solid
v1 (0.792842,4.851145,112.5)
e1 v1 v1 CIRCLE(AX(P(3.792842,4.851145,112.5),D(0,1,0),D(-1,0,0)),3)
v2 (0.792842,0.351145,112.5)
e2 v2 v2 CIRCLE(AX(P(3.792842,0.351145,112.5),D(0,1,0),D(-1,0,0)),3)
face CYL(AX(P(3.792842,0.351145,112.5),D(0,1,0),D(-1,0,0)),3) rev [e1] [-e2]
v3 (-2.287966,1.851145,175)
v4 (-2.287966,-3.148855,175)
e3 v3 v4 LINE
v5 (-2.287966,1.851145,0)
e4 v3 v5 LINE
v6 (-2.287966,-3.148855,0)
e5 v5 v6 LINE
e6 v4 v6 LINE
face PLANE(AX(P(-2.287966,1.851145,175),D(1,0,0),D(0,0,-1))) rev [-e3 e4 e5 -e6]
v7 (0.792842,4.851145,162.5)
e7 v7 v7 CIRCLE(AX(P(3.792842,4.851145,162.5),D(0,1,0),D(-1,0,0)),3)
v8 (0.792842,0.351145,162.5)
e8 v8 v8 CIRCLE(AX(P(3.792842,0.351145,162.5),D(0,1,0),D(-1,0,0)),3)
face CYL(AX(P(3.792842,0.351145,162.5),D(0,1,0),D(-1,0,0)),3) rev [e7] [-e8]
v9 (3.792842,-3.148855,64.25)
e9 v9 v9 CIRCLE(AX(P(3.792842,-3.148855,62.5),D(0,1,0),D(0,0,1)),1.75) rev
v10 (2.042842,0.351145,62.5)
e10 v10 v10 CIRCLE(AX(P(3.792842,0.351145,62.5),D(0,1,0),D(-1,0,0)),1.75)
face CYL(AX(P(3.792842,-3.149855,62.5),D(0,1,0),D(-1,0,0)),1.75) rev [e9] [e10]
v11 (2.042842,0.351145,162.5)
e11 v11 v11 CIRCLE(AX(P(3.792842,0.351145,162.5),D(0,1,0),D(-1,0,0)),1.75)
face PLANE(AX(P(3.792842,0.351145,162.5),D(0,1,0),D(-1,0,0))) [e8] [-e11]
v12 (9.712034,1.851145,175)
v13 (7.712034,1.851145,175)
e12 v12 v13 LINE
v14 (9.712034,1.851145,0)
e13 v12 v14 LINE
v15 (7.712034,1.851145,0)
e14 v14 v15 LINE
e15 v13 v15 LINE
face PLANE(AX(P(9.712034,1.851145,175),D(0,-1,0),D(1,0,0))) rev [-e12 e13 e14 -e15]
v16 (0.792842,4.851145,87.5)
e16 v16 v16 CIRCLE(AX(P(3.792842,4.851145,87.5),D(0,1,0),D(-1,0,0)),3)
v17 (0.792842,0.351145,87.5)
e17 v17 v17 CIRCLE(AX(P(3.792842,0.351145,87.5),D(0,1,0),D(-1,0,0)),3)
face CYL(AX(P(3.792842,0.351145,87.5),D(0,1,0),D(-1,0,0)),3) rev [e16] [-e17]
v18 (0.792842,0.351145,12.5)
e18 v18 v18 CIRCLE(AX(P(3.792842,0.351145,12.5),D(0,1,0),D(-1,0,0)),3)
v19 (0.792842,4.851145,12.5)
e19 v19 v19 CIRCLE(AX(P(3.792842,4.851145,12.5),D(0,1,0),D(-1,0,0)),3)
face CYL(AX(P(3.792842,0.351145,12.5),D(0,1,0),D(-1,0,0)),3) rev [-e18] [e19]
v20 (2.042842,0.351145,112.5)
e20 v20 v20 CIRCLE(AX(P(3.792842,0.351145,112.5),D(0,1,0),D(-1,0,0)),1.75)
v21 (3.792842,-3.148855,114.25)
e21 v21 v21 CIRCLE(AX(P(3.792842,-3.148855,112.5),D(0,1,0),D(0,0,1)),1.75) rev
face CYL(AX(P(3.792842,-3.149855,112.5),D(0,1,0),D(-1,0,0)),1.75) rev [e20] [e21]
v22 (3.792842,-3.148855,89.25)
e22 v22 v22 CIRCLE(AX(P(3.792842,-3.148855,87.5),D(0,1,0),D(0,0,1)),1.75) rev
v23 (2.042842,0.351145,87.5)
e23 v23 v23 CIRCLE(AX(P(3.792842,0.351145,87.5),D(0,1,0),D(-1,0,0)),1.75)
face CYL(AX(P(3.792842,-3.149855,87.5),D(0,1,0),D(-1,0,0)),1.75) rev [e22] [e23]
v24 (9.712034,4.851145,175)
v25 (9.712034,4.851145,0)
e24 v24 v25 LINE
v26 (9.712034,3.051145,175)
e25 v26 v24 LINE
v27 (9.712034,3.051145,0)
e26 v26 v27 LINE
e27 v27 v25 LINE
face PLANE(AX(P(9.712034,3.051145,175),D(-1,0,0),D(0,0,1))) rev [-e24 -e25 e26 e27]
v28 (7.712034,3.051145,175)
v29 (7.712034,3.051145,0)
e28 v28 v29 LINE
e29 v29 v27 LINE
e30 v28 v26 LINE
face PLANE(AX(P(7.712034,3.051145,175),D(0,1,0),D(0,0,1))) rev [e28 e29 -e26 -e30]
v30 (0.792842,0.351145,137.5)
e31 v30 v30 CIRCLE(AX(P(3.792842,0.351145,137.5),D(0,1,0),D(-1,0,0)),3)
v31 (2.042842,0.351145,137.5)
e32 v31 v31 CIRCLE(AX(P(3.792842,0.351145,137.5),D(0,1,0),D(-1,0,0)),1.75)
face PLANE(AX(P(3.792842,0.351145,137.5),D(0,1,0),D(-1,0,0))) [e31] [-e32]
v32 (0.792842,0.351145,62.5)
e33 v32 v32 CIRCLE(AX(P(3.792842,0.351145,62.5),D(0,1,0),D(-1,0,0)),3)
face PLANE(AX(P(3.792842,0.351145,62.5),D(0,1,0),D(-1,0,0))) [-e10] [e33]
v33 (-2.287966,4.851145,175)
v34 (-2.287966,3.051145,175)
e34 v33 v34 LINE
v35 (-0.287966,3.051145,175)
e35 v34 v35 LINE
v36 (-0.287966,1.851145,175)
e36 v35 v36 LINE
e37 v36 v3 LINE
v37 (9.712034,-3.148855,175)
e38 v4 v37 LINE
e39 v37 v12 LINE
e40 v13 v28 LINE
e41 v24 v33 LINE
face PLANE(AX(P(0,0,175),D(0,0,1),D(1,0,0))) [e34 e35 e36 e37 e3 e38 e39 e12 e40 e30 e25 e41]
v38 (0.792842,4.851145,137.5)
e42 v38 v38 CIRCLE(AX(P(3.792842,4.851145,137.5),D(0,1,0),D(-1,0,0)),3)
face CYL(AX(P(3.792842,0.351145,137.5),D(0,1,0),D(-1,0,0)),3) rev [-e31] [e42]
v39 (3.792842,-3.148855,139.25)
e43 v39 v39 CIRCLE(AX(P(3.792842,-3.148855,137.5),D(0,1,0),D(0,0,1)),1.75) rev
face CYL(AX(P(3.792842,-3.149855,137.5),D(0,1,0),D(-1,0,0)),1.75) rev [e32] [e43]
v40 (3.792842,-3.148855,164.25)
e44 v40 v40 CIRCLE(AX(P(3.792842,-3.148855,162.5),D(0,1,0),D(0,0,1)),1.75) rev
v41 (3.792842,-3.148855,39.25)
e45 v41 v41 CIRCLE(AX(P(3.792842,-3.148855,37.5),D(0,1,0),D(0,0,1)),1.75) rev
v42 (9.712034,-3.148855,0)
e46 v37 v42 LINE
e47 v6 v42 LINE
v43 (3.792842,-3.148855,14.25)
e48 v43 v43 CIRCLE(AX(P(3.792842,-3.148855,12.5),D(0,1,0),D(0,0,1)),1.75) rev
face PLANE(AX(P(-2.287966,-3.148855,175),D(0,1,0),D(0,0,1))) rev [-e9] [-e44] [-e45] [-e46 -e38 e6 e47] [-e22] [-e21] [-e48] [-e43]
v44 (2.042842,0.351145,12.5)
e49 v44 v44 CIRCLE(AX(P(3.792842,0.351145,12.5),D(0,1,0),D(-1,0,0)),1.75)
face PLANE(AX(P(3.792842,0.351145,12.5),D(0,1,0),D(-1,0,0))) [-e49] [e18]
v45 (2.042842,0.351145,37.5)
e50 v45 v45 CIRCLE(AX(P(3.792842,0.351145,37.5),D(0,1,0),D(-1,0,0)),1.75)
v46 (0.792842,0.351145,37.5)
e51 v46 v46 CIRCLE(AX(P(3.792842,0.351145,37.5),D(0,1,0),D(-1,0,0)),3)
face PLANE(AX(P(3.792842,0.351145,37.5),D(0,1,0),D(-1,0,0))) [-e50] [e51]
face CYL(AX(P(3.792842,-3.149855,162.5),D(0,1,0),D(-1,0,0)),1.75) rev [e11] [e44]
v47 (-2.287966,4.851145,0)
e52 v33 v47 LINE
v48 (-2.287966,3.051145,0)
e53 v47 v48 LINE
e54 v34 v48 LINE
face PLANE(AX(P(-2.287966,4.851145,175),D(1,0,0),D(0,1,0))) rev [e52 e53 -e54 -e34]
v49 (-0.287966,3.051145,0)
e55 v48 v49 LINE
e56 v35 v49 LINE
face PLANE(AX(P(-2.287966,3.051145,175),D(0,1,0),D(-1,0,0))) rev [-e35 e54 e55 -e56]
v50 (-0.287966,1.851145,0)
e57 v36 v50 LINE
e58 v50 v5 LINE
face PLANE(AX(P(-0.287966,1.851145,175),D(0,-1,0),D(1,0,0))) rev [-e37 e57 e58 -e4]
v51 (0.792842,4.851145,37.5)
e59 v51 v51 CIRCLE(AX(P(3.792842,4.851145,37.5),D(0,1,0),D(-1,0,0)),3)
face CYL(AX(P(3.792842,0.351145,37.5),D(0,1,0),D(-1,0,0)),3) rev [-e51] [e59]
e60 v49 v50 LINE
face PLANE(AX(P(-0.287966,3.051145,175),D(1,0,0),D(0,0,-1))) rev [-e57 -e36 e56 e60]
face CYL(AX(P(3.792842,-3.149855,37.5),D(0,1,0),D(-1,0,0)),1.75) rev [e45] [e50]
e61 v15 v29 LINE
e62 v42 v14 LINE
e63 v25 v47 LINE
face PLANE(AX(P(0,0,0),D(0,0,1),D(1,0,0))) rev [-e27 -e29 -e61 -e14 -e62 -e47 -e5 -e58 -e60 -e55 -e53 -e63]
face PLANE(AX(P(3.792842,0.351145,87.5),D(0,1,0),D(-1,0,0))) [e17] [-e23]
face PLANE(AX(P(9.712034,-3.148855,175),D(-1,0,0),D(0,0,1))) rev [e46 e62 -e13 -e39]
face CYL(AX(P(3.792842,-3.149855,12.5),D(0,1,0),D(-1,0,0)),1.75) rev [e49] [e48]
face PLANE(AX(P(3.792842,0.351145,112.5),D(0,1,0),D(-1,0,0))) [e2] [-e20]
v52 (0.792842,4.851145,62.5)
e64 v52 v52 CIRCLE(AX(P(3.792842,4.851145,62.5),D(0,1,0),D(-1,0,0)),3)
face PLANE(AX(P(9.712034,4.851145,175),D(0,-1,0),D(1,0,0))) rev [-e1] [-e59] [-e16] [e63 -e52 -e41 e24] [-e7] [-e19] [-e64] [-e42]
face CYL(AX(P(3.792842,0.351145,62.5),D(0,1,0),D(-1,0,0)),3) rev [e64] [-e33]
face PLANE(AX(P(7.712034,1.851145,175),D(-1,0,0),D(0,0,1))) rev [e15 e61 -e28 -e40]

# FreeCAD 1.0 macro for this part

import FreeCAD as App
import Part
import Sketcher

V = App.Vector

doc = App.newDocument("Part")
params = doc.addObject("Spreadsheet::Sheet", "Params")
for row, (alias, value) in enumerate([
    ("sketch1_width", "12 mm"),
    ("sketch1_width2", "2 mm"),
    ("sketch1_height", "5 mm"),
    ("sketch1_height2", "1.2 mm"),
    ("sketch1_height3", "1.8 mm"),
    ("pad1_length", "175 mm"),
    ("sketch2_diameter", "6 mm"),
    ("pocket1_length", "4.5 mm"),
    ("sketch3_diameter", "3.5 mm"),
    ("sketch4_diameter", "3.5 mm"),
    ("sketch5_diameter", "3.5 mm"),
    ("sketch6_diameter", "3.5 mm"),
    ("sketch7_diameter", "3.5 mm"),
    ("sketch8_diameter", "3.5 mm"),
    ("sketch9_diameter", "3.5 mm"),
], start=1):
    params.set(f"A{row}", alias)
    params.set(f"B{row}", "=" + value)
    params.setAlias(f"B{row}", alias)

body = doc.addObject("PartDesign::Body", "Body")

# Sketch on XY plane
sketch1 = body.newObject("Sketcher::SketchObject", "Sketch")
sketch1.AttachmentSupport = (doc.getObject("XY_Plane"), [""])
sketch1.MapMode = "FlatFace"
sketch1.addGeometry([
    Part.LineSegment(V(-2.3, -3.1, 0), V(9.7, -3.1, 0)),  # 0
    Part.LineSegment(V(9.7, -3.1, 0), V(9.7, 1.9, 0)),  # 1
    Part.LineSegment(V(9.7, 1.9, 0), V(7.7, 1.9, 0)),  # 2
    Part.LineSegment(V(7.7, 1.9, 0), V(7.7, 3.1, 0)),  # 3
    Part.LineSegment(V(7.7, 3.1, 0), V(9.7, 3.1, 0)),  # 4
    Part.LineSegment(V(9.7, 3.1, 0), V(9.7, 4.9, 0)),  # 5
    Part.LineSegment(V(9.7, 4.9, 0), V(-2.3, 4.9, 0)),  # 6
    Part.LineSegment(V(-2.3, 4.9, 0), V(-2.3, 3.1, 0)),  # 7
    Part.LineSegment(V(-2.3, 3.1, 0), V(-0.3, 3.1, 0)),  # 8
    Part.LineSegment(V(-0.3, 3.1, 0), V(-0.3, 1.9, 0)),  # 9
    Part.LineSegment(V(-0.3, 1.9, 0), V(-2.3, 1.9, 0)),  # 10
    Part.LineSegment(V(-2.3, 1.9, 0), V(-2.3, -3.1, 0)),  # 11
], False)
sketch1.addConstraint([
    Sketcher.Constraint("Coincident", 0, 2, 1, 1),
    Sketcher.Constraint("Coincident", 1, 2, 2, 1),
    Sketcher.Constraint("Coincident", 2, 2, 3, 1),
    Sketcher.Constraint("Coincident", 3, 2, 4, 1),
    Sketcher.Constraint("Coincident", 4, 2, 5, 1),
    Sketcher.Constraint("Coincident", 5, 2, 6, 1),
    Sketcher.Constraint("Coincident", 6, 2, 7, 1),
    Sketcher.Constraint("Coincident", 7, 2, 8, 1),
    Sketcher.Constraint("Coincident", 8, 2, 9, 1),
    Sketcher.Constraint("Coincident", 9, 2, 10, 1),
    Sketcher.Constraint("Coincident", 10, 2, 11, 1),
    Sketcher.Constraint("Coincident", 11, 2, 0, 1),
    Sketcher.Constraint("Horizontal", 0),
    Sketcher.Constraint("Vertical", 1),
    Sketcher.Constraint("Horizontal", 2),
    Sketcher.Constraint("Vertical", 3),
    Sketcher.Constraint("Horizontal", 4),
    Sketcher.Constraint("Vertical", 5),
    Sketcher.Constraint("Horizontal", 6),
    Sketcher.Constraint("Vertical", 7),
    Sketcher.Constraint("Horizontal", 8),
    Sketcher.Constraint("Vertical", 9),
    Sketcher.Constraint("Horizontal", 10),
    Sketcher.Constraint("Vertical", 11),
    Sketcher.Constraint("Horizontal", 4, 2, 7, 2),
    Sketcher.Constraint("Horizontal", 2, 2, 9, 2),
    Sketcher.Constraint("Vertical", 1, 2, 4, 2),
    Sketcher.Constraint("Vertical", 7, 2, 10, 2),
    Sketcher.Constraint("Equal", 4, 8),
    Sketcher.Constraint("DistanceX", 0, 1, 0, 2, 12.0),
    Sketcher.Constraint("DistanceX", 2, 2, 2, 1, 2.0),
    Sketcher.Constraint("DistanceY", 1, 1, 1, 2, 5.0),
    Sketcher.Constraint("DistanceY", 3, 1, 3, 2, 1.2),
    Sketcher.Constraint("DistanceY", 5, 1, 5, 2, 1.8),
    Sketcher.Constraint("DistanceX", -1, 1, 0, 2, 9.712034),
    Sketcher.Constraint("DistanceY", 0, 2, -1, 1, 3.148855),
])
sketch1.setExpression("Constraints[29]", "Params.sketch1_width")
sketch1.setExpression("Constraints[30]", "Params.sketch1_width2")
sketch1.setExpression("Constraints[31]", "Params.sketch1_height")
sketch1.setExpression("Constraints[32]", "Params.sketch1_height2")
sketch1.setExpression("Constraints[33]", "Params.sketch1_height3")
pad1 = body.newObject("PartDesign::Pad", "Pad")
pad1.Profile = sketch1
pad1.setExpression("Length", "Params.pad1_length")

# Sketch on XZ plane
sketch2 = body.newObject("Sketcher::SketchObject", "Sketch001")
sketch2.AttachmentSupport = (doc.getObject("XZ_Plane"), [""])
sketch2.MapMode = "FlatFace"
sketch2.AttachmentOffset = App.Placement(V(0, 0, -4.851145), App.Rotation())
sketch2.addGeometry([
    Part.Circle(V(3.8, 162.5, 0), V(0, 0, 1), 3),  # 0
    Part.Circle(V(3.8, 137.5, 0), V(0, 0, 1), 3),  # 1
    Part.Circle(V(3.8, 112.5, 0), V(0, 0, 1), 3),  # 2
    Part.Circle(V(3.8, 87.5, 0), V(0, 0, 1), 3),  # 3
    Part.Circle(V(3.8, 62.5, 0), V(0, 0, 1), 3),  # 4
    Part.Circle(V(3.8, 37.5, 0), V(0, 0, 1), 3),  # 5
    Part.Circle(V(3.8, 12.5, 0), V(0, 0, 1), 3),  # 6
], False)
sketch2.addConstraint([
    Sketcher.Constraint("Equal", 0, 1),
    Sketcher.Constraint("Equal", 1, 2),
    Sketcher.Constraint("Equal", 2, 3),
    Sketcher.Constraint("Equal", 3, 4),
    Sketcher.Constraint("Equal", 4, 5),
    Sketcher.Constraint("Equal", 5, 6),
    Sketcher.Constraint("Vertical", 0, 3, 1, 3),
    Sketcher.Constraint("Vertical", 1, 3, 2, 3),
    Sketcher.Constraint("Vertical", 2, 3, 3, 3),
    Sketcher.Constraint("Vertical", 3, 3, 4, 3),
    Sketcher.Constraint("Vertical", 4, 3, 5, 3),
    Sketcher.Constraint("Vertical", 5, 3, 6, 3),
    Sketcher.Constraint("Diameter", 0, 6.0),
    Sketcher.Constraint("DistanceY", 1, 3, 0, 3, 25.0),
    Sketcher.Constraint("DistanceY", 2, 3, 1, 3, 25.0),
    Sketcher.Constraint("DistanceY", 3, 3, 2, 3, 25.0),
    Sketcher.Constraint("DistanceY", 4, 3, 3, 3, 25.0),
    Sketcher.Constraint("DistanceY", 5, 3, 4, 3, 25.0),
    Sketcher.Constraint("DistanceY", 6, 3, 5, 3, 25.0),
    Sketcher.Constraint("DistanceY", -1, 1, 0, 3, 162.5),
    Sketcher.Constraint("DistanceX", -1, 1, 0, 3, 3.792842),
])
sketch2.setExpression("Constraints[12]", "Params.sketch2_diameter")
pocket1 = body.newObject("PartDesign::Pocket", "Pocket")
pocket1.Profile = sketch2
pocket1.setExpression("Length", "Params.pocket1_length")
pocket1.Reversed = True

# Sketch on XZ plane
sketch3 = body.newObject("Sketcher::SketchObject", "Sketch002")
sketch3.AttachmentSupport = (doc.getObject("XZ_Plane"), [""])
sketch3.MapMode = "FlatFace"
sketch3.AttachmentOffset = App.Placement(V(0, 0, -0.351145), App.Rotation())
sketch3.addGeometry(Part.Circle(V(3.8, 162.5, 0), V(0, 0, 1), 1.8), False)
sketch3.addConstraint([
    Sketcher.Constraint("Diameter", 0, 3.5),
    Sketcher.Constraint("DistanceY", -1, 1, 0, 3, 162.5),
    Sketcher.Constraint("DistanceX", -1, 1, 0, 3, 3.792842),
])
sketch3.setExpression("Constraints[0]", "Params.sketch3_diameter")
pocket2 = body.newObject("PartDesign::Pocket", "Pocket001")
pocket2.Profile = sketch3
pocket2.Type = "UpToFirst"
pocket2.Reversed = True

# Sketch on XZ plane
sketch4 = body.newObject("Sketcher::SketchObject", "Sketch003")
sketch4.AttachmentSupport = (doc.getObject("XZ_Plane"), [""])
sketch4.MapMode = "FlatFace"
sketch4.AttachmentOffset = App.Placement(V(0, 0, -0.351145), App.Rotation())
sketch4.addGeometry(Part.Circle(V(3.8, 137.5, 0), V(0, 0, 1), 1.8), False)
sketch4.addConstraint([
    Sketcher.Constraint("Diameter", 0, 3.5),
    Sketcher.Constraint("DistanceY", -1, 1, 0, 3, 137.5),
    Sketcher.Constraint("DistanceX", -1, 1, 0, 3, 3.792842),
])
sketch4.setExpression("Constraints[0]", "Params.sketch4_diameter")
pocket3 = body.newObject("PartDesign::Pocket", "Pocket002")
pocket3.Profile = sketch4
pocket3.Type = "UpToFirst"
pocket3.Reversed = True

# Sketch on XZ plane
sketch5 = body.newObject("Sketcher::SketchObject", "Sketch004")
sketch5.AttachmentSupport = (doc.getObject("XZ_Plane"), [""])
sketch5.MapMode = "FlatFace"
sketch5.AttachmentOffset = App.Placement(V(0, 0, -0.351145), App.Rotation())
sketch5.addGeometry(Part.Circle(V(3.8, 112.5, 0), V(0, 0, 1), 1.8), False)
sketch5.addConstraint([
    Sketcher.Constraint("Diameter", 0, 3.5),
    Sketcher.Constraint("DistanceY", -1, 1, 0, 3, 112.5),
    Sketcher.Constraint("DistanceX", -1, 1, 0, 3, 3.792842),
])
sketch5.setExpression("Constraints[0]", "Params.sketch5_diameter")
pocket4 = body.newObject("PartDesign::Pocket", "Pocket003")
pocket4.Profile = sketch5
pocket4.Type = "UpToFirst"
pocket4.Reversed = True

# Sketch on XZ plane
sketch6 = body.newObject("Sketcher::SketchObject", "Sketch005")
sketch6.AttachmentSupport = (doc.getObject("XZ_Plane"), [""])
sketch6.MapMode = "FlatFace"
sketch6.AttachmentOffset = App.Placement(V(0, 0, -0.351145), App.Rotation())
sketch6.addGeometry(Part.Circle(V(3.8, 87.5, 0), V(0, 0, 1), 1.8), False)
sketch6.addConstraint([
    Sketcher.Constraint("Diameter", 0, 3.5),
    Sketcher.Constraint("DistanceY", -1, 1, 0, 3, 87.5),
    Sketcher.Constraint("DistanceX", -1, 1, 0, 3, 3.792842),
])
sketch6.setExpression("Constraints[0]", "Params.sketch6_diameter")
pocket5 = body.newObject("PartDesign::Pocket", "Pocket004")
pocket5.Profile = sketch6
pocket5.Type = "UpToFirst"
pocket5.Reversed = True

# Sketch on XZ plane
sketch7 = body.newObject("Sketcher::SketchObject", "Sketch006")
sketch7.AttachmentSupport = (doc.getObject("XZ_Plane"), [""])
sketch7.MapMode = "FlatFace"
sketch7.AttachmentOffset = App.Placement(V(0, 0, -0.351145), App.Rotation())
sketch7.addGeometry(Part.Circle(V(3.8, 62.5, 0), V(0, 0, 1), 1.8), False)
sketch7.addConstraint([
    Sketcher.Constraint("Diameter", 0, 3.5),
    Sketcher.Constraint("DistanceY", -1, 1, 0, 3, 62.5),
    Sketcher.Constraint("DistanceX", -1, 1, 0, 3, 3.792842),
])
sketch7.setExpression("Constraints[0]", "Params.sketch7_diameter")
pocket6 = body.newObject("PartDesign::Pocket", "Pocket005")
pocket6.Profile = sketch7
pocket6.Type = "UpToFirst"
pocket6.Reversed = True

# Sketch on XZ plane
sketch8 = body.newObject("Sketcher::SketchObject", "Sketch007")
sketch8.AttachmentSupport = (doc.getObject("XZ_Plane"), [""])
sketch8.MapMode = "FlatFace"
sketch8.AttachmentOffset = App.Placement(V(0, 0, -0.351145), App.Rotation())
sketch8.addGeometry(Part.Circle(V(3.8, 37.5, 0), V(0, 0, 1), 1.8), False)
sketch8.addConstraint([
    Sketcher.Constraint("Diameter", 0, 3.5),
    Sketcher.Constraint("DistanceY", -1, 1, 0, 3, 37.5),
    Sketcher.Constraint("DistanceX", -1, 1, 0, 3, 3.792842),
])
sketch8.setExpression("Constraints[0]", "Params.sketch8_diameter")
pocket7 = body.newObject("PartDesign::Pocket", "Pocket006")
pocket7.Profile = sketch8
pocket7.Type = "UpToFirst"
pocket7.Reversed = True

# Sketch on XZ plane
sketch9 = body.newObject("Sketcher::SketchObject", "Sketch008")
sketch9.AttachmentSupport = (doc.getObject("XZ_Plane"), [""])
sketch9.MapMode = "FlatFace"
sketch9.AttachmentOffset = App.Placement(V(0, 0, -0.351145), App.Rotation())
sketch9.addGeometry(Part.Circle(V(3.8, 12.5, 0), V(0, 0, 1), 1.8), False)
sketch9.addConstraint([
    Sketcher.Constraint("Diameter", 0, 3.5),
    Sketcher.Constraint("DistanceY", -1, 1, 0, 3, 12.5),
    Sketcher.Constraint("DistanceX", -1, 1, 0, 3, 3.792842),
])
sketch9.setExpression("Constraints[0]", "Params.sketch9_diameter")
pocket8 = body.newObject("PartDesign::Pocket", "Pocket007")
pocket8.Profile = sketch9
pocket8.Type = "UpToFirst"
pocket8.Reversed = True

doc.recompute()
